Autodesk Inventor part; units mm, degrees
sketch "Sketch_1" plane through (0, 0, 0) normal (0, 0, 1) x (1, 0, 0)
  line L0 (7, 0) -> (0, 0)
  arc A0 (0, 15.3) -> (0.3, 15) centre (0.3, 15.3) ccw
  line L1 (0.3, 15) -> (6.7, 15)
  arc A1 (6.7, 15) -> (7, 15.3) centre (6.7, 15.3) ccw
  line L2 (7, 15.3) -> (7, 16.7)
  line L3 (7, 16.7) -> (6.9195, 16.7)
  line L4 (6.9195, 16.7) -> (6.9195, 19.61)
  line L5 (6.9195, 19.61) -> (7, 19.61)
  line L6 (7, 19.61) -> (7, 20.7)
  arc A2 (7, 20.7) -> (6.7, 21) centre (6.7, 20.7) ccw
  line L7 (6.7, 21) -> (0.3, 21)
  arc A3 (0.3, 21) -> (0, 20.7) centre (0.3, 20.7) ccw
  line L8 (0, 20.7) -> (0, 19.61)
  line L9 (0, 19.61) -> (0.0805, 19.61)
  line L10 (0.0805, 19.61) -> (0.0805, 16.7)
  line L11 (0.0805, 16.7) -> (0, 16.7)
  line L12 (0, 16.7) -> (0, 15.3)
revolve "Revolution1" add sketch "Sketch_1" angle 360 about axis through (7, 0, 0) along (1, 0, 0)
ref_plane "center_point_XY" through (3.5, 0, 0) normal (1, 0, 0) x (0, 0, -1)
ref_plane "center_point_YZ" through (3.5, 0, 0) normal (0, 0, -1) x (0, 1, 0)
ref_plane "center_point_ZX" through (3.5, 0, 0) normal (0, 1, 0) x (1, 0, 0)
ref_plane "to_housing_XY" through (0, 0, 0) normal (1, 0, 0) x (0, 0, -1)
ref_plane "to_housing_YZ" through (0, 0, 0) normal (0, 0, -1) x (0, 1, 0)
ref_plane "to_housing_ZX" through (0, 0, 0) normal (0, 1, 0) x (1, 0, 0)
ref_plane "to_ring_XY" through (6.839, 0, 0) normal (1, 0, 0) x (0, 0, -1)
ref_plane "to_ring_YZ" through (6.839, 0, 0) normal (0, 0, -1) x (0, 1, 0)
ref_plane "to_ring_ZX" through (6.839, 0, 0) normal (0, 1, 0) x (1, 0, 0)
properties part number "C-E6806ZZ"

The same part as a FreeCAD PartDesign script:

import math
import FreeCAD as App
import Part
import Sketcher

doc = App.newDocument("Part")
params = doc.addObject("Spreadsheet::Sheet", "Params")
for row, (alias, value) in enumerate([
    ("sketch1_radius", "0.3 mm"),
    ("sketch1_width", "6.4 mm"),
    ("sketch1_height", "1.4 mm"),
    ("sketch1_height2", "2.91 mm"),
    ("revolution_angle", "360 deg"),
], start=1):
    params.set(f"A{row}", alias)
    params.set(f"B{row}", "=" + value)
    params.setAlias(f"B{row}", alias)

body = doc.addObject("PartDesign::Body", "Body")

# Sketch on XY plane
sketch1 = doc.addObject("Sketcher::SketchObject", "Sketch")
body.addObject(sketch1)
sketch1.AttachmentSupport = (doc.XY_Plane, [""])
sketch1.MapMode = "FlatFace"
sketch1.addGeometry(Part.LineSegment(App.Vector(0, 16.7, 0), App.Vector(0, 15.3, 0)), False)
sketch1.addGeometry(Part.ArcOfCircle(Part.Circle(App.Vector(0.3, 15.3, 0), App.Vector(0, 0, 1), 0.3), math.radians(180), math.radians(270)), False)
sketch1.addGeometry(Part.LineSegment(App.Vector(0.3, 15, 0), App.Vector(6.7, 15, 0)), False)
sketch1.addGeometry(Part.ArcOfCircle(Part.Circle(App.Vector(6.7, 15.3, 0), App.Vector(0, 0, 1), 0.3), math.radians(-90), math.radians(0)), False)
sketch1.addGeometry(Part.LineSegment(App.Vector(7, 15.3, 0), App.Vector(7, 16.7, 0)), False)
sketch1.addGeometry(Part.LineSegment(App.Vector(7, 16.7, 0), App.Vector(6.92, 16.7, 0)), False)
sketch1.addGeometry(Part.LineSegment(App.Vector(6.92, 16.7, 0), App.Vector(6.92, 19.61, 0)), False)
sketch1.addGeometry(Part.LineSegment(App.Vector(6.92, 19.61, 0), App.Vector(7, 19.61, 0)), False)
sketch1.addGeometry(Part.LineSegment(App.Vector(7, 19.61, 0), App.Vector(7, 20.7, 0)), False)
sketch1.addGeometry(Part.ArcOfCircle(Part.Circle(App.Vector(6.7, 20.7, 0), App.Vector(0, 0, 1), 0.3), math.radians(0), math.radians(90)), False)
sketch1.addGeometry(Part.LineSegment(App.Vector(6.7, 21, 0), App.Vector(0.3, 21, 0)), False)
sketch1.addGeometry(Part.ArcOfCircle(Part.Circle(App.Vector(0.3, 20.7, 0), App.Vector(0, 0, 1), 0.3), math.radians(90), math.radians(180)), False)
sketch1.addGeometry(Part.LineSegment(App.Vector(0, 20.7, 0), App.Vector(0, 19.61, 0)), False)
sketch1.addGeometry(Part.LineSegment(App.Vector(0, 19.61, 0), App.Vector(0.08, 19.61, 0)), False)
sketch1.addGeometry(Part.LineSegment(App.Vector(0.08, 19.61, 0), App.Vector(0.08, 16.7, 0)), False)
sketch1.addGeometry(Part.LineSegment(App.Vector(0.08, 16.7, 0), App.Vector(0, 16.7, 0)), False)
sketch1.addConstraint(Sketcher.Constraint("Tangent", 0, 2, 1, 1))
sketch1.addConstraint(Sketcher.Constraint("Tangent", 1, 2, 2, 1))
sketch1.addConstraint(Sketcher.Constraint("Tangent", 2, 2, 3, 1))
sketch1.addConstraint(Sketcher.Constraint("Tangent", 3, 2, 4, 1))
sketch1.addConstraint(Sketcher.Constraint("Coincident", 4, 2, 5, 1))
sketch1.addConstraint(Sketcher.Constraint("Coincident", 5, 2, 6, 1))
sketch1.addConstraint(Sketcher.Constraint("Coincident", 6, 2, 7, 1))
sketch1.addConstraint(Sketcher.Constraint("Coincident", 7, 2, 8, 1))
sketch1.addConstraint(Sketcher.Constraint("Tangent", 8, 2, 9, 1))
sketch1.addConstraint(Sketcher.Constraint("Tangent", 9, 2, 10, 1))
sketch1.addConstraint(Sketcher.Constraint("Tangent", 10, 2, 11, 1))
sketch1.addConstraint(Sketcher.Constraint("Tangent", 11, 2, 12, 1))
sketch1.addConstraint(Sketcher.Constraint("Coincident", 12, 2, 13, 1))
sketch1.addConstraint(Sketcher.Constraint("Coincident", 13, 2, 14, 1))
sketch1.addConstraint(Sketcher.Constraint("Coincident", 14, 2, 15, 1))
sketch1.addConstraint(Sketcher.Constraint("Coincident", 15, 2, 0, 1))
sketch1.addConstraint(Sketcher.Constraint("Vertical", 0))
sketch1.addConstraint(Sketcher.Constraint("Horizontal", 2))
sketch1.addConstraint(Sketcher.Constraint("Vertical", 4))
sketch1.addConstraint(Sketcher.Constraint("Horizontal", 5))
sketch1.addConstraint(Sketcher.Constraint("Vertical", 6))
sketch1.addConstraint(Sketcher.Constraint("Horizontal", 7))
sketch1.addConstraint(Sketcher.Constraint("Vertical", 8))
sketch1.addConstraint(Sketcher.Constraint("Horizontal", 10))
sketch1.addConstraint(Sketcher.Constraint("Vertical", 12))
sketch1.addConstraint(Sketcher.Constraint("Horizontal", 13))
sketch1.addConstraint(Sketcher.Constraint("Vertical", 14))
sketch1.addConstraint(Sketcher.Constraint("Horizontal", 15))
sketch1.addConstraint(Sketcher.Constraint("Equal", 1, 3))
sketch1.addConstraint(Sketcher.Constraint("Equal", 3, 9))
sketch1.addConstraint(Sketcher.Constraint("Equal", 9, 11))
sketch1.addConstraint(Sketcher.Constraint("PointOnObject", 0, 2, -2))
sketch1.addConstraint(Sketcher.Constraint("PointOnObject", 11, 2, -2))
sketch1.addConstraint(Sketcher.Constraint("Horizontal", 7, 2, 12, 2))
sketch1.addConstraint(Sketcher.Constraint("Horizontal", 5, 2, 14, 2))
sketch1.addConstraint(Sketcher.Constraint("Vertical", 3, 3, 9, 3))
sketch1.addConstraint(Sketcher.Constraint("Equal", 7, 13))
sketch1.addConstraint(Sketcher.Constraint("Radius", 1, 0.3))
sketch1.addConstraint(Sketcher.Constraint("DistanceX", 2, 1, 2, 2, 6.4))
sketch1.addConstraint(Sketcher.Constraint("DistanceY", 0, 2, 0, 1, 1.4))
sketch1.addConstraint(Sketcher.Constraint("DistanceY", -1, 1, 1, 2, 15.0))
sketch1.addConstraint(Sketcher.Constraint("DistanceY", -1, 1, 9, 2, 21.0))
sketch1.addConstraint(Sketcher.Constraint("DistanceY", 6, 1, 6, 2, 2.91))
sketch1.addConstraint(Sketcher.Constraint("DistanceX", 5, 2, 5, 1, 0.0805))
sketch1.setExpression("Constraints[37]", "Params.sketch1_radius")
sketch1.setExpression("Constraints[38]", "Params.sketch1_width")
sketch1.setExpression("Constraints[39]", "Params.sketch1_height")
sketch1.setExpression("Constraints[42]", "Params.sketch1_height2")
revolution = doc.addObject("PartDesign::Revolution", "Revolution")
body.addObject(revolution)
revolution.Profile = sketch1
revolution.ReferenceAxis = (sketch1, ["H_Axis"])
revolution.setExpression("Angle", "Params.revolution_angle")

doc.recompute()
